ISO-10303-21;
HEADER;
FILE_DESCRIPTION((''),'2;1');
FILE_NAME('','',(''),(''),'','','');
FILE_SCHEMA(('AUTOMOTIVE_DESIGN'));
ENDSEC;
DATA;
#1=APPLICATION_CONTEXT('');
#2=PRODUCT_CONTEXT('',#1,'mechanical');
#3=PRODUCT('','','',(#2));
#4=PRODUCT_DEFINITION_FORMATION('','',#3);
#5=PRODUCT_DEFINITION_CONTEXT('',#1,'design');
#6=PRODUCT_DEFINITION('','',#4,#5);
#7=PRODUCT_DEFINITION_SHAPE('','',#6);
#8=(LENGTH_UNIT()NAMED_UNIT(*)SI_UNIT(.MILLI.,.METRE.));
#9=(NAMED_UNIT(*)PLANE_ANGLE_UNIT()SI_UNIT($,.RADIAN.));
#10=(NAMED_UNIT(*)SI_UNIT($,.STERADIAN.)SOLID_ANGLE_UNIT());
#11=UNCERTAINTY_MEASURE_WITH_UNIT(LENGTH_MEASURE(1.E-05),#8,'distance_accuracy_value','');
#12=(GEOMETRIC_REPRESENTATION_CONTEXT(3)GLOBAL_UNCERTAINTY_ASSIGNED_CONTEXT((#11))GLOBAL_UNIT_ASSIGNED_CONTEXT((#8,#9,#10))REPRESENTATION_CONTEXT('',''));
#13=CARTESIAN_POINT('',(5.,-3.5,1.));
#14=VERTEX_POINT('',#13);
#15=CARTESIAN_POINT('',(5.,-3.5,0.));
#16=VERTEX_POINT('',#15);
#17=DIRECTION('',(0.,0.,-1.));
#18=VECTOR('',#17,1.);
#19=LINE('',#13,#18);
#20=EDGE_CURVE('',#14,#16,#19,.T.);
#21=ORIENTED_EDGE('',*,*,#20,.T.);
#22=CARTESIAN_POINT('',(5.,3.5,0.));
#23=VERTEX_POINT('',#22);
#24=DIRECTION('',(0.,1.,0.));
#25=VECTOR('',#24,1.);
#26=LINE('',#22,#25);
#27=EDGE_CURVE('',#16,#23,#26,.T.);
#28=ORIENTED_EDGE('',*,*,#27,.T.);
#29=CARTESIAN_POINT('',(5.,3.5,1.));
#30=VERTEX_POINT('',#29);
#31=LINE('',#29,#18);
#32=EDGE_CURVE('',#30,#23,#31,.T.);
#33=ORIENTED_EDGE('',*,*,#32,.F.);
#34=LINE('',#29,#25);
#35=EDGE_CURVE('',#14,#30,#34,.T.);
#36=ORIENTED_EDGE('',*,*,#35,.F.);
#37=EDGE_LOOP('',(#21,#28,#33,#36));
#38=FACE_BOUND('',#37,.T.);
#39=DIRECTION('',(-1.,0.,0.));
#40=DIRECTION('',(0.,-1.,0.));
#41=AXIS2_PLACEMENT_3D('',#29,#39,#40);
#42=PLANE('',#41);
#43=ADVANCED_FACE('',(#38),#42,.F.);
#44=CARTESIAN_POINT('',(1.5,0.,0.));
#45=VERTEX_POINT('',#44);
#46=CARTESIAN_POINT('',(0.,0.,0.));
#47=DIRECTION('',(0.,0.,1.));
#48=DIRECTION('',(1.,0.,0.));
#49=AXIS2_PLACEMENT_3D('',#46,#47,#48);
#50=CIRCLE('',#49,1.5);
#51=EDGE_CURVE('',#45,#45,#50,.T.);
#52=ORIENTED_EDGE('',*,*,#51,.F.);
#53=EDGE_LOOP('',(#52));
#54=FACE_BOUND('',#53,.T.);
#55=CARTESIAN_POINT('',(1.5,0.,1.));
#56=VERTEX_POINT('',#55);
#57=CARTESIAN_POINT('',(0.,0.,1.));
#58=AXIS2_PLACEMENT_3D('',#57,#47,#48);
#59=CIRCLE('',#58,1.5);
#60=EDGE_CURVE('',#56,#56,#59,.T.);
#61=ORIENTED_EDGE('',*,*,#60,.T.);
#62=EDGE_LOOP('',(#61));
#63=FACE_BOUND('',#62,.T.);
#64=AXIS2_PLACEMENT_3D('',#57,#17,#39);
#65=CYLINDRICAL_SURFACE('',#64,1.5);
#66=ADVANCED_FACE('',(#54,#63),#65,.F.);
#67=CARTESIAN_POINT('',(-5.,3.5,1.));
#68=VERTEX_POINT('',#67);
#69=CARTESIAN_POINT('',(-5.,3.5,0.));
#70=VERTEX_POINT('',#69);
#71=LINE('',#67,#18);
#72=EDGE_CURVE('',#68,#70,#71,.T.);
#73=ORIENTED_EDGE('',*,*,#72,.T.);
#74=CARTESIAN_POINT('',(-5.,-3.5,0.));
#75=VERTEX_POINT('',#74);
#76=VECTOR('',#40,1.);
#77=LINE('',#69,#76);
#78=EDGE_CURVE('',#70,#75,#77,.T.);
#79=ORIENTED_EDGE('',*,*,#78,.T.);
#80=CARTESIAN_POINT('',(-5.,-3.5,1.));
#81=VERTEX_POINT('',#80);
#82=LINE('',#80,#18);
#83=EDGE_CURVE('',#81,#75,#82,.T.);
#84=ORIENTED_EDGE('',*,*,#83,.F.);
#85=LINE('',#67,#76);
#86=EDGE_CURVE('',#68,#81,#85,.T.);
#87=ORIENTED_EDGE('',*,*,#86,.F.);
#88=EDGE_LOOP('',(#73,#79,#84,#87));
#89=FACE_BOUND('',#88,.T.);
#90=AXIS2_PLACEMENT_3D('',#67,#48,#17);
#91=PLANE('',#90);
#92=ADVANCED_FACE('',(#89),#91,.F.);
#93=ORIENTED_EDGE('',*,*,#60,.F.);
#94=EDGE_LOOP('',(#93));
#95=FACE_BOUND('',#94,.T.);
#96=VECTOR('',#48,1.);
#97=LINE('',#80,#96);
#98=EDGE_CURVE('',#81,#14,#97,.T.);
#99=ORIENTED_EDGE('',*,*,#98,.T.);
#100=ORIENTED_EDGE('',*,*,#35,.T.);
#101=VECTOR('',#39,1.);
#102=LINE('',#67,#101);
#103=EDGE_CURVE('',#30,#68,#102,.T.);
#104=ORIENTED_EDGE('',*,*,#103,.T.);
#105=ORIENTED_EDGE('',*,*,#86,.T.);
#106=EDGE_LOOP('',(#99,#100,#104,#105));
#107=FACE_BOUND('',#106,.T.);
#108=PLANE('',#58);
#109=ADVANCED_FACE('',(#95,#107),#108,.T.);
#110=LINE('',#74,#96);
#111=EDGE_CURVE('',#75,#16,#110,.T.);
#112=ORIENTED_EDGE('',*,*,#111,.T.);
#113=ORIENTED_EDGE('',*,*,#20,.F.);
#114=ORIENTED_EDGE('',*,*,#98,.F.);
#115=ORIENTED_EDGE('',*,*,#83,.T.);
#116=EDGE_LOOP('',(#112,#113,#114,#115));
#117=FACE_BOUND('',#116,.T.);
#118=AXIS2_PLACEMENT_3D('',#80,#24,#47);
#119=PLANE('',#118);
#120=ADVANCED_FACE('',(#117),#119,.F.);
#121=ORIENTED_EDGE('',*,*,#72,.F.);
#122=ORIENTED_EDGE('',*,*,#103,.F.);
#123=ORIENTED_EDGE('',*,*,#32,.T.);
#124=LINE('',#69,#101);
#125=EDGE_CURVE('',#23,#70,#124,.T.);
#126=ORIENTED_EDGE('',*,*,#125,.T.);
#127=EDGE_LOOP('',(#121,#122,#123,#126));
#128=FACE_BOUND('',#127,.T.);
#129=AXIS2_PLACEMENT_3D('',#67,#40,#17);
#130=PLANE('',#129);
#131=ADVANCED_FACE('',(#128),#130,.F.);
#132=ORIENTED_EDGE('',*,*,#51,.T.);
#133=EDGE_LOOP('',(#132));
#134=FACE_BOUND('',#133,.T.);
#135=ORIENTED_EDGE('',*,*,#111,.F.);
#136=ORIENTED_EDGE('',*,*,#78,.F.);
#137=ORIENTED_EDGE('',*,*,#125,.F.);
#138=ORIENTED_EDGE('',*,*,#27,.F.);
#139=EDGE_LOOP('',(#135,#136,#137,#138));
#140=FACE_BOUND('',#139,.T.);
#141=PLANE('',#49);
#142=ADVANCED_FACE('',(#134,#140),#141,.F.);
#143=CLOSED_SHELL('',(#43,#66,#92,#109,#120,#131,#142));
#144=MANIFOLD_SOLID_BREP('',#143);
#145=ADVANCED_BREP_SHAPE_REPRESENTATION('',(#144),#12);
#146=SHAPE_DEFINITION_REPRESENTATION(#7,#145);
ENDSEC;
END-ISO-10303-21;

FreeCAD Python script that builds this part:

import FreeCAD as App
import Part
import Sketcher

V = App.Vector

doc = App.newDocument("Part")
body = doc.addObject("PartDesign::Body", "Body")

sketch1 = body.newObject("Sketcher::SketchObject", "Sketch")
sketch1.AttachmentSupport = (doc.getObject("XY_Plane"), [""])
sketch1.MapMode = "FlatFace"
sketch1.addGeometry([
    Part.LineSegment(V(-5, 3.5, 0), V(-5, -3.5, 0)),
    Part.LineSegment(V(-5, -3.5, 0), V(5, -3.5, 0)),
    Part.LineSegment(V(5, -3.5, 0), V(5, 3.5, 0)),
    Part.LineSegment(V(5, 3.5, 0), V(-5, 3.5, 0)),
    Part.Circle(V(0, 0, 0), V(0, 0, 1), 1.5),
], False)
sketch1.addConstraint([
    Sketcher.Constraint("Coincident", 0, 2, 1, 1),
    Sketcher.Constraint("Coincident", 1, 2, 2, 1),
    Sketcher.Constraint("Coincident", 2, 2, 3, 1),
    Sketcher.Constraint("Coincident", 3, 2, 0, 1),
    Sketcher.Constraint("Vertical", 0),
    Sketcher.Constraint("Horizontal", 1),
    Sketcher.Constraint("Vertical", 2),
    Sketcher.Constraint("Horizontal", 3),
    Sketcher.Constraint("Coincident", 4, 3, -1, 1),
    Sketcher.Constraint("Symmetric", 0, 2, 2, 2, -1, 1),
    Sketcher.Constraint("Diameter", 4, 3.0),
    Sketcher.Constraint("DistanceX", 1, 1, 1, 2, 10.0),
    Sketcher.Constraint("DistanceY", 0, 2, 0, 1, 7.0),
])
pad1 = body.newObject("PartDesign::Pad", "Pad")
pad1.Profile = sketch1
pad1.Length = 1

doc.recompute()
